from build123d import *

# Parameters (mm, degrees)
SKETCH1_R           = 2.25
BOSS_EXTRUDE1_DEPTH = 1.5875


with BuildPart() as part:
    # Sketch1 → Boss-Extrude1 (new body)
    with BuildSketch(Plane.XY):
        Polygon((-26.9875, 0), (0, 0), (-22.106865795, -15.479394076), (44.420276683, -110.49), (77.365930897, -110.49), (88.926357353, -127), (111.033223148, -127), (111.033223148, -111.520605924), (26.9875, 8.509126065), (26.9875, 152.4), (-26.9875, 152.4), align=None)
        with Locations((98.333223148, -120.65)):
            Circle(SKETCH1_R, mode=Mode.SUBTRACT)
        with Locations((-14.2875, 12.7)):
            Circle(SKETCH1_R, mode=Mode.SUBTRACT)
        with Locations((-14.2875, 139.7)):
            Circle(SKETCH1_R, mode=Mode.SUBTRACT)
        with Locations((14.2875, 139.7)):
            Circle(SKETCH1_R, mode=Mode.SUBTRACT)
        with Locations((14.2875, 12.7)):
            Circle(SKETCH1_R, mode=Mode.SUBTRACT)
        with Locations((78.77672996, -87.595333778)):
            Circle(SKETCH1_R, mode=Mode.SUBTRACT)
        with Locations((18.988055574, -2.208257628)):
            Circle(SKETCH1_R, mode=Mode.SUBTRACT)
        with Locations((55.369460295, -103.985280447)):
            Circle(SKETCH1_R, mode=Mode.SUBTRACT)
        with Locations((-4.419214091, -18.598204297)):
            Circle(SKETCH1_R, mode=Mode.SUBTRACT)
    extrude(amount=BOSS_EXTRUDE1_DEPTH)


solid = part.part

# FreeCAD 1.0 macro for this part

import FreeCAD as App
import Part
import Sketcher
from FreeCAD import Vector
Q = App.Units.Quantity


def add_polygon(sketch, points):
    """Adds a closed chain of lines whose ends are joined by coincident constraints."""
    first, n = sketch.GeometryCount, len(points)
    for a, b in zip(points, points[1:] + points[:1]):
        sketch.addGeometry(Part.LineSegment(App.Vector(*a, 0), App.Vector(*b, 0)), False)
    for i in range(n):
        sketch.addConstraint(Sketcher.Constraint("Coincident", first + i, 2, first + (i + 1) % n, 1))

doc = App.newDocument("Part")
body = doc.addObject("PartDesign::Body", "Body")

# Sketch on XY plane
sketch1 = body.newObject("Sketcher::SketchObject", "Sketch")
sketch1.AttachmentSupport = (doc.getObject("XY_Plane"), [""])
sketch1.MapMode = "FlatFace"
add_polygon(sketch1, [(-26.9875, 0), (0, 0), (-22.106866, -15.479394), (44.420277, -110.49), (77.365931, -110.49), (88.926357, -127), (111.033223, -127), (111.033223, -111.520606), (26.9875, 8.509126), (26.9875, 152.4), (-26.9875, 152.4)])  # lines 0-10
sketch1.addGeometry(Part.Circle(Vector(-4.419214, -18.598204, 0), Vector(0, 0, 1), 2.25), False)  # 11
sketch1.addGeometry(Part.Circle(Vector(18.988056, -2.208258, 0), Vector(0, 0, 1), 2.25), False)  # 12
sketch1.addGeometry(Part.Circle(Vector(55.36946, -103.98528, 0), Vector(0, 0, 1), 2.25), False)  # 13
sketch1.addGeometry(Part.Circle(Vector(98.333223, -120.65, 0), Vector(0, 0, 1), 2.25), False)  # 14
sketch1.addGeometry(Part.Circle(Vector(78.77673, -87.595334, 0), Vector(0, 0, 1), 2.25), False)  # 15
sketch1.addGeometry(Part.Circle(Vector(-14.2875, 12.7, 0), Vector(0, 0, 1), 2.25), False)  # 16
sketch1.addGeometry(Part.Circle(Vector(14.2875, 12.7, 0), Vector(0, 0, 1), 2.25), False)  # 17
sketch1.addGeometry(Part.Circle(Vector(-14.2875, 139.7, 0), Vector(0, 0, 1), 2.25), False)  # 18
sketch1.addGeometry(Part.Circle(Vector(14.2875, 139.7, 0), Vector(0, 0, 1), 2.25), False)  # 19
sketch1.addConstraint([
    Sketcher.Constraint("Horizontal", 0),
    Sketcher.Constraint("Horizontal", 3),
    Sketcher.Constraint("Horizontal", 5),
    Sketcher.Constraint("Vertical", 6),
    Sketcher.Constraint("Vertical", 8),
    Sketcher.Constraint("Horizontal", 9),
    Sketcher.Constraint("Vertical", 10),
    Sketcher.Constraint("Coincident", 0, 2, -1, 1),
    Sketcher.Constraint("Equal", 11, 12),
    Sketcher.Constraint("Equal", 12, 13),
    Sketcher.Constraint("Equal", 13, 14),
    Sketcher.Constraint("Equal", 14, 15),
    Sketcher.Constraint("Equal", 15, 16),
    Sketcher.Constraint("Equal", 16, 17),
    Sketcher.Constraint("Equal", 17, 18),
    Sketcher.Constraint("Equal", 18, 19),
    Sketcher.Constraint("Symmetric", 16, 3, 17, 3, -2),
    Sketcher.Constraint("Symmetric", 18, 3, 19, 3, -2),
    Sketcher.Constraint("Perpendicular", 1, 2),
    Sketcher.Constraint("Parallel", 2, 4),
    Sketcher.Constraint("Parallel", 4, 7),
    Sketcher.Constraint("Vertical", 16, 3, 18, 3),
    Sketcher.Constraint("DistanceY", 10, 2, 10, 1, Q("6 in")),
    Sketcher.Constraint("DistanceY", 4, 2, -1, 1, Q("5 in")),
    Sketcher.Constraint("Angle", 1, Q("-145 deg")),
    Sketcher.Constraint("DistanceY", 16, 3, 18, 3, Q("5 in")),
    Sketcher.Constraint("DistanceY", -1, 1, 16, 3, Q("0.5 in")),
    Sketcher.Constraint("DistanceY", 14, 3, 2, 2, Q("0.4 in")),
    Sketcher.Constraint("DistanceX", 14, 3, 5, 2, Q("0.5 in")),
    Sketcher.Constraint("DistanceX", 17, 3, 7, 2, Q("0.5 in")),
    Sketcher.Constraint("DistanceX", 9, 2, 18, 3, Q("0.5 in")),
    Sketcher.Constraint("Diameter", 11, 4.5),
    Sketcher.Constraint("DistanceX", 0, 1, 0, 2, Q("1.0625 in")),
    Sketcher.Constraint("DistanceY", 14, 3, -1, 1, Q("4.75 in")),
    Sketcher.Constraint("Distance", 1, Q("1.0625 in")),
    Sketcher.Constraint("DistanceX", -1, 1, 13, 3, Q("2.1799 in")),
    Sketcher.Constraint("DistanceX", 3, 2, 15, 3, 1.410799),
    Sketcher.Constraint("DistanceX", 3, 1, 3, 2, 32.945654),
    Sketcher.Constraint("DistanceX", 5, 1, 5, 2, 22.106866),
    Sketcher.Constraint("DistanceY", 6, 1, 6, 2, 15.479394),
    Sketcher.Constraint("DistanceY", 13, 3, -1, 1, 103.98528),
    Sketcher.Constraint("DistanceX", 11, 3, 12, 3, 23.40727),
    Sketcher.Constraint("DistanceY", 15, 3, 11, 3, 68.997129),
    Sketcher.Constraint("DistanceX", 1, 2, 11, 3, 17.687652),
    Sketcher.Constraint("DistanceY", 11, 3, 1, 2, 3.11881),
    Sketcher.Constraint("DistanceY", 12, 3, -1, 1, 2.208258),
])
pad1 = body.newObject("PartDesign::Pad", "Pad")
pad1.Profile = sketch1
pad1.Length = Q("0.0625 in")

doc.recompute()
